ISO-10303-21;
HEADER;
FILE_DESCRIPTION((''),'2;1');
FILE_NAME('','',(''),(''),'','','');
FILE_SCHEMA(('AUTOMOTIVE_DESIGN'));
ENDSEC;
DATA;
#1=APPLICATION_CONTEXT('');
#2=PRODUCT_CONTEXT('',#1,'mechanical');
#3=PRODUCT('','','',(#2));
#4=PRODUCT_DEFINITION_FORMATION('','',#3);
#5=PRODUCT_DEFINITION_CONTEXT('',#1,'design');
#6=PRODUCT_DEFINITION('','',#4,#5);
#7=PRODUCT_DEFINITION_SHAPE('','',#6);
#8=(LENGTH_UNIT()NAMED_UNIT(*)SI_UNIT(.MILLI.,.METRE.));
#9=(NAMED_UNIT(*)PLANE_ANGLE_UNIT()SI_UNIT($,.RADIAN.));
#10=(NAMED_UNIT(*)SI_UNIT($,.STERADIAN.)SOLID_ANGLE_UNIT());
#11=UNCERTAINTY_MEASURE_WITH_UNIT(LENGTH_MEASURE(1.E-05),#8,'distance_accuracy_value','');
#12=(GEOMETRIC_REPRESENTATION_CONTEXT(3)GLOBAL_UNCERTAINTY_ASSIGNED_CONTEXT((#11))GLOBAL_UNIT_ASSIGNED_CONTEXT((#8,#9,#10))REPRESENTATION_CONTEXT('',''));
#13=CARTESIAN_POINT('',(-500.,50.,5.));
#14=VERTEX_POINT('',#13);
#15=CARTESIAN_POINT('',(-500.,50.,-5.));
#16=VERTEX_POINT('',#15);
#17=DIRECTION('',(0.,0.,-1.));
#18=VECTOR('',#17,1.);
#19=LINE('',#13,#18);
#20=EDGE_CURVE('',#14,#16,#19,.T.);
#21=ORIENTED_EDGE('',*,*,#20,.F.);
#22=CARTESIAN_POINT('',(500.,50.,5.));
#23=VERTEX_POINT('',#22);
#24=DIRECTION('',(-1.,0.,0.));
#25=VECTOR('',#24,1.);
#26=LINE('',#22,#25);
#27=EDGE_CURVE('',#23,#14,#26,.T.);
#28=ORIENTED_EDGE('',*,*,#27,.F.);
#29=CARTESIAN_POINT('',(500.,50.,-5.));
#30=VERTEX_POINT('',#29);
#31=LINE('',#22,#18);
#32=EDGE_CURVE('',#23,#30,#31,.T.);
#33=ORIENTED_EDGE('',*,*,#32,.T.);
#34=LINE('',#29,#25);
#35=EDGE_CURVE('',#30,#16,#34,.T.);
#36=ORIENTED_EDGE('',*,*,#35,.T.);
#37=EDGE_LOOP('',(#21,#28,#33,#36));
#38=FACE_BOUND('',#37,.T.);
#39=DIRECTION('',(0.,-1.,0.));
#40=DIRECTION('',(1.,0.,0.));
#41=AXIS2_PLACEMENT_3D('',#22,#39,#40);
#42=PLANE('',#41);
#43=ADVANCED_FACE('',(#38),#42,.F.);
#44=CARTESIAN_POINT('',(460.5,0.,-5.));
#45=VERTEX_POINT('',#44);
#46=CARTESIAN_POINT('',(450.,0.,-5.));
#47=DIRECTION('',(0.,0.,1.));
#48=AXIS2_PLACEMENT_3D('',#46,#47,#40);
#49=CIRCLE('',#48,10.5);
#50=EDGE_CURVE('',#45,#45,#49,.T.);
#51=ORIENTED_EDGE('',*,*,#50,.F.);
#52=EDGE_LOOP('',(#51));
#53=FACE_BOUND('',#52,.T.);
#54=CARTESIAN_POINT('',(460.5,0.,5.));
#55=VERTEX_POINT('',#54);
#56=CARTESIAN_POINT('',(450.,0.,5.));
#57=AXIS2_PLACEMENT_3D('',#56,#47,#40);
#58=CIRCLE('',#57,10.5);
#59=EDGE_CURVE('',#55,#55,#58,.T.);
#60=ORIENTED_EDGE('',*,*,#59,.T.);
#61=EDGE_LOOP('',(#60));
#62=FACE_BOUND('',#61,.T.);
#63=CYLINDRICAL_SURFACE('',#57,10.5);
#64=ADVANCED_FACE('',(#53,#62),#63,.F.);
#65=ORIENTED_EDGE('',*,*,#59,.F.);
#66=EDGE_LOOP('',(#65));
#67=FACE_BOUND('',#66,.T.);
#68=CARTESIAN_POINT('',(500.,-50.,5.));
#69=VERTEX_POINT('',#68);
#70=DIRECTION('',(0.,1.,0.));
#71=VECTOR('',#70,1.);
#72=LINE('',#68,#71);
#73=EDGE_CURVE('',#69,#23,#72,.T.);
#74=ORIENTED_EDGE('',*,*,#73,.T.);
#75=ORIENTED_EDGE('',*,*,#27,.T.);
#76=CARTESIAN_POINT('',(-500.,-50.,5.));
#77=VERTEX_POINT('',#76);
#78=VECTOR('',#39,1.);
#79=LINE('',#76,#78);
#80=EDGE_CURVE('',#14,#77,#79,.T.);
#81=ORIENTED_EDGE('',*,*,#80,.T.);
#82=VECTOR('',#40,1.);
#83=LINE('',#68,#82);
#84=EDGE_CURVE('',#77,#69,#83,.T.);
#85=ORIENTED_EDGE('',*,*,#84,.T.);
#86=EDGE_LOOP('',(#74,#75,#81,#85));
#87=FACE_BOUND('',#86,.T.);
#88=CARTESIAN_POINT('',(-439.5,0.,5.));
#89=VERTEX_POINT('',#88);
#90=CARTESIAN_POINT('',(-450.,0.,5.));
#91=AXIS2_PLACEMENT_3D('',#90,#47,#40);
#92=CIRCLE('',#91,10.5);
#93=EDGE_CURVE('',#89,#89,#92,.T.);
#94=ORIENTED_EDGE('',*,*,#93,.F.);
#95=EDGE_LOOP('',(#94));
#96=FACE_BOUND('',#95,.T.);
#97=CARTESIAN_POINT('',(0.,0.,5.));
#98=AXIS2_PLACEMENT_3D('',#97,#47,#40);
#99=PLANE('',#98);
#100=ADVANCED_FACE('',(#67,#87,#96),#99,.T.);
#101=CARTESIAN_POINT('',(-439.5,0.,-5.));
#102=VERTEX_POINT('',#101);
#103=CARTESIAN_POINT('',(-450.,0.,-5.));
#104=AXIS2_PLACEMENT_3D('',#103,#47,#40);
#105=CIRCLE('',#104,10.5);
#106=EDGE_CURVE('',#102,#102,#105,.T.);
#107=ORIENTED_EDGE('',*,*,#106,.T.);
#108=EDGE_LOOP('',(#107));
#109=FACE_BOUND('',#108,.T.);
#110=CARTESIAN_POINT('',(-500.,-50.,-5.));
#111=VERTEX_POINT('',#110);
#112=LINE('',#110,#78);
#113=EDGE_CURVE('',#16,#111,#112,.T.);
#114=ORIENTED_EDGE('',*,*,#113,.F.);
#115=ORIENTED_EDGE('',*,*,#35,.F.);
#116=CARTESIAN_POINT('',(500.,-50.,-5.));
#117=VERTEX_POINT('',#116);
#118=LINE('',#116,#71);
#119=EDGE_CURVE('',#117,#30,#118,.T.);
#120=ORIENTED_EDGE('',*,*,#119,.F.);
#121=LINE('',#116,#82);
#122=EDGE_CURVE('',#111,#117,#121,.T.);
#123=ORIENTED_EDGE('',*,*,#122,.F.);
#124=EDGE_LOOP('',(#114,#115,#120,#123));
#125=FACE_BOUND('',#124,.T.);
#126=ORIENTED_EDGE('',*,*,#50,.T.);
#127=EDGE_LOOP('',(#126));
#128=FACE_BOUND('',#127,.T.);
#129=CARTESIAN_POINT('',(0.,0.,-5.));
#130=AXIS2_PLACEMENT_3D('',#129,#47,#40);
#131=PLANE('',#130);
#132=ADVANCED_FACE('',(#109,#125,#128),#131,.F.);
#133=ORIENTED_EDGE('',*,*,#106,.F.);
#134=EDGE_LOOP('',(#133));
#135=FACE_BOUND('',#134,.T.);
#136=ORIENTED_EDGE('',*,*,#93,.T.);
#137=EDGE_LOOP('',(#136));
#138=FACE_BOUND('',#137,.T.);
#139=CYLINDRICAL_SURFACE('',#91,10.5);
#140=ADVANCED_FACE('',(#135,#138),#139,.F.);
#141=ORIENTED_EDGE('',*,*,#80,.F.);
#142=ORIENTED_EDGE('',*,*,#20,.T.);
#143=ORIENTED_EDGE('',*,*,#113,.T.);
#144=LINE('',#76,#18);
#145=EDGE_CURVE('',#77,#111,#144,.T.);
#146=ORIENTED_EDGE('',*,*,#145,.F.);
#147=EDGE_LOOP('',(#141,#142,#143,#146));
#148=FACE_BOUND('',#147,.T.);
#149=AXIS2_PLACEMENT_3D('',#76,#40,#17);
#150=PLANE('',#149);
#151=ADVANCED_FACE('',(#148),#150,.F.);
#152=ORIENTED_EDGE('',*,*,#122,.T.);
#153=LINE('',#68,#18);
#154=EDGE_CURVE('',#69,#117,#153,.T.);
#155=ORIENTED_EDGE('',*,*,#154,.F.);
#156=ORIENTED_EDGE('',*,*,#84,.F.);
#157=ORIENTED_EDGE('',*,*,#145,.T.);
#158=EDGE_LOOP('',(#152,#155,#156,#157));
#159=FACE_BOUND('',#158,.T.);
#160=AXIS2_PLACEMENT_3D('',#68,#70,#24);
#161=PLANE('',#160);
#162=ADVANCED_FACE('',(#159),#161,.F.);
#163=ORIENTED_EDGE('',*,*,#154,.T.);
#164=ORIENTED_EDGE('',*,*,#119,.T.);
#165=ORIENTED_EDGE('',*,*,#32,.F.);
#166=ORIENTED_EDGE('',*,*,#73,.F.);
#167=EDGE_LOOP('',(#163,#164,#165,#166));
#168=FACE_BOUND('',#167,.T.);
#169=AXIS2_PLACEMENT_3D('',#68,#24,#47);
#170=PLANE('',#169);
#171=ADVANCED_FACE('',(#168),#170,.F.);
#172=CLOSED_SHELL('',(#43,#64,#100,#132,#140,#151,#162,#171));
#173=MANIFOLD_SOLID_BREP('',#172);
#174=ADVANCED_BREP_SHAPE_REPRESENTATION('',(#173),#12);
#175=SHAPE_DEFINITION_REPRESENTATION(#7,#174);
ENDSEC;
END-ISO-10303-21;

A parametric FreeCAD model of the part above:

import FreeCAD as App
import Part
import Sketcher

V = App.Vector

doc = App.newDocument("Part")
body = doc.addObject("PartDesign::Body", "Body")

sketch1 = body.newObject("Sketcher::SketchObject", "Sketch")
sketch1.AttachmentSupport = (doc.getObject("XY_Plane"), [""])
sketch1.MapMode = "FlatFace"
sketch1.addGeometry(Part.LineSegment(V(-500, 50, 0), V(-500, -50, 0)), False)
sketch1.addGeometry(Part.LineSegment(V(-500, -50, 0), V(500, -50, 0)), False)
sketch1.addGeometry(Part.LineSegment(V(500, -50, 0), V(500, 50, 0)), False)
sketch1.addGeometry(Part.LineSegment(V(500, 50, 0), V(-500, 50, 0)), False)
sketch1.addConstraint(Sketcher.Constraint("Coincident", 0, 2, 1, 1))
sketch1.addConstraint(Sketcher.Constraint("Coincident", 1, 2, 2, 1))
sketch1.addConstraint(Sketcher.Constraint("Coincident", 2, 2, 3, 1))
sketch1.addConstraint(Sketcher.Constraint("Coincident", 3, 2, 0, 1))
sketch1.addConstraint(Sketcher.Constraint("Vertical", 0))
sketch1.addConstraint(Sketcher.Constraint("Horizontal", 1))
sketch1.addConstraint(Sketcher.Constraint("Vertical", 2))
sketch1.addConstraint(Sketcher.Constraint("Horizontal", 3))
sketch1.addConstraint(Sketcher.Constraint("Symmetric", 0, 2, 2, 2, -1, 1))
sketch1.addConstraint(Sketcher.Constraint("DistanceX", 1, 1, 1, 2, 1000.0))
sketch1.addConstraint(Sketcher.Constraint("DistanceY", 0, 2, 0, 1, 100.0))
pad1 = body.newObject("PartDesign::Pad", "Pad")
pad1.Profile = sketch1
pad1.Length = 10
pad1.Midplane = True

sketch2 = body.newObject("Sketcher::SketchObject", "Sketch001")
sketch2.AttachmentSupport = (doc.getObject("XY_Plane"), [""])
sketch2.MapMode = "FlatFace"
sketch2.AttachmentOffset = App.Placement(V(0, 0, 5), App.Rotation())
sketch2.addGeometry(Part.Circle(V(-450, 0, 0), V(0, 0, 1), 10), False)
sketch2.addGeometry(Part.Circle(V(450, 0, 0), V(0, 0, 1), 10), False)
sketch2.addConstraint(Sketcher.Constraint("Equal", 0, 1))
sketch2.addConstraint(Sketcher.Constraint("Symmetric", 0, 3, 1, 3, -1, 1))
sketch2.addConstraint(Sketcher.Constraint("PointOnObject", 0, 3, -1))
sketch2.addConstraint(Sketcher.Constraint("Diameter", 0, 21.0))
sketch2.addConstraint(Sketcher.Constraint("DistanceX", 0, 3, -1, 1, 450.0))
doc.recompute()
hole = body.newObject("PartDesign::Hole", "Hole")
hole.Profile = sketch2
hole.ThreadType = "None"
hole.Diameter = 21
hole.DepthType = "ThroughAll"

doc.recompute()
